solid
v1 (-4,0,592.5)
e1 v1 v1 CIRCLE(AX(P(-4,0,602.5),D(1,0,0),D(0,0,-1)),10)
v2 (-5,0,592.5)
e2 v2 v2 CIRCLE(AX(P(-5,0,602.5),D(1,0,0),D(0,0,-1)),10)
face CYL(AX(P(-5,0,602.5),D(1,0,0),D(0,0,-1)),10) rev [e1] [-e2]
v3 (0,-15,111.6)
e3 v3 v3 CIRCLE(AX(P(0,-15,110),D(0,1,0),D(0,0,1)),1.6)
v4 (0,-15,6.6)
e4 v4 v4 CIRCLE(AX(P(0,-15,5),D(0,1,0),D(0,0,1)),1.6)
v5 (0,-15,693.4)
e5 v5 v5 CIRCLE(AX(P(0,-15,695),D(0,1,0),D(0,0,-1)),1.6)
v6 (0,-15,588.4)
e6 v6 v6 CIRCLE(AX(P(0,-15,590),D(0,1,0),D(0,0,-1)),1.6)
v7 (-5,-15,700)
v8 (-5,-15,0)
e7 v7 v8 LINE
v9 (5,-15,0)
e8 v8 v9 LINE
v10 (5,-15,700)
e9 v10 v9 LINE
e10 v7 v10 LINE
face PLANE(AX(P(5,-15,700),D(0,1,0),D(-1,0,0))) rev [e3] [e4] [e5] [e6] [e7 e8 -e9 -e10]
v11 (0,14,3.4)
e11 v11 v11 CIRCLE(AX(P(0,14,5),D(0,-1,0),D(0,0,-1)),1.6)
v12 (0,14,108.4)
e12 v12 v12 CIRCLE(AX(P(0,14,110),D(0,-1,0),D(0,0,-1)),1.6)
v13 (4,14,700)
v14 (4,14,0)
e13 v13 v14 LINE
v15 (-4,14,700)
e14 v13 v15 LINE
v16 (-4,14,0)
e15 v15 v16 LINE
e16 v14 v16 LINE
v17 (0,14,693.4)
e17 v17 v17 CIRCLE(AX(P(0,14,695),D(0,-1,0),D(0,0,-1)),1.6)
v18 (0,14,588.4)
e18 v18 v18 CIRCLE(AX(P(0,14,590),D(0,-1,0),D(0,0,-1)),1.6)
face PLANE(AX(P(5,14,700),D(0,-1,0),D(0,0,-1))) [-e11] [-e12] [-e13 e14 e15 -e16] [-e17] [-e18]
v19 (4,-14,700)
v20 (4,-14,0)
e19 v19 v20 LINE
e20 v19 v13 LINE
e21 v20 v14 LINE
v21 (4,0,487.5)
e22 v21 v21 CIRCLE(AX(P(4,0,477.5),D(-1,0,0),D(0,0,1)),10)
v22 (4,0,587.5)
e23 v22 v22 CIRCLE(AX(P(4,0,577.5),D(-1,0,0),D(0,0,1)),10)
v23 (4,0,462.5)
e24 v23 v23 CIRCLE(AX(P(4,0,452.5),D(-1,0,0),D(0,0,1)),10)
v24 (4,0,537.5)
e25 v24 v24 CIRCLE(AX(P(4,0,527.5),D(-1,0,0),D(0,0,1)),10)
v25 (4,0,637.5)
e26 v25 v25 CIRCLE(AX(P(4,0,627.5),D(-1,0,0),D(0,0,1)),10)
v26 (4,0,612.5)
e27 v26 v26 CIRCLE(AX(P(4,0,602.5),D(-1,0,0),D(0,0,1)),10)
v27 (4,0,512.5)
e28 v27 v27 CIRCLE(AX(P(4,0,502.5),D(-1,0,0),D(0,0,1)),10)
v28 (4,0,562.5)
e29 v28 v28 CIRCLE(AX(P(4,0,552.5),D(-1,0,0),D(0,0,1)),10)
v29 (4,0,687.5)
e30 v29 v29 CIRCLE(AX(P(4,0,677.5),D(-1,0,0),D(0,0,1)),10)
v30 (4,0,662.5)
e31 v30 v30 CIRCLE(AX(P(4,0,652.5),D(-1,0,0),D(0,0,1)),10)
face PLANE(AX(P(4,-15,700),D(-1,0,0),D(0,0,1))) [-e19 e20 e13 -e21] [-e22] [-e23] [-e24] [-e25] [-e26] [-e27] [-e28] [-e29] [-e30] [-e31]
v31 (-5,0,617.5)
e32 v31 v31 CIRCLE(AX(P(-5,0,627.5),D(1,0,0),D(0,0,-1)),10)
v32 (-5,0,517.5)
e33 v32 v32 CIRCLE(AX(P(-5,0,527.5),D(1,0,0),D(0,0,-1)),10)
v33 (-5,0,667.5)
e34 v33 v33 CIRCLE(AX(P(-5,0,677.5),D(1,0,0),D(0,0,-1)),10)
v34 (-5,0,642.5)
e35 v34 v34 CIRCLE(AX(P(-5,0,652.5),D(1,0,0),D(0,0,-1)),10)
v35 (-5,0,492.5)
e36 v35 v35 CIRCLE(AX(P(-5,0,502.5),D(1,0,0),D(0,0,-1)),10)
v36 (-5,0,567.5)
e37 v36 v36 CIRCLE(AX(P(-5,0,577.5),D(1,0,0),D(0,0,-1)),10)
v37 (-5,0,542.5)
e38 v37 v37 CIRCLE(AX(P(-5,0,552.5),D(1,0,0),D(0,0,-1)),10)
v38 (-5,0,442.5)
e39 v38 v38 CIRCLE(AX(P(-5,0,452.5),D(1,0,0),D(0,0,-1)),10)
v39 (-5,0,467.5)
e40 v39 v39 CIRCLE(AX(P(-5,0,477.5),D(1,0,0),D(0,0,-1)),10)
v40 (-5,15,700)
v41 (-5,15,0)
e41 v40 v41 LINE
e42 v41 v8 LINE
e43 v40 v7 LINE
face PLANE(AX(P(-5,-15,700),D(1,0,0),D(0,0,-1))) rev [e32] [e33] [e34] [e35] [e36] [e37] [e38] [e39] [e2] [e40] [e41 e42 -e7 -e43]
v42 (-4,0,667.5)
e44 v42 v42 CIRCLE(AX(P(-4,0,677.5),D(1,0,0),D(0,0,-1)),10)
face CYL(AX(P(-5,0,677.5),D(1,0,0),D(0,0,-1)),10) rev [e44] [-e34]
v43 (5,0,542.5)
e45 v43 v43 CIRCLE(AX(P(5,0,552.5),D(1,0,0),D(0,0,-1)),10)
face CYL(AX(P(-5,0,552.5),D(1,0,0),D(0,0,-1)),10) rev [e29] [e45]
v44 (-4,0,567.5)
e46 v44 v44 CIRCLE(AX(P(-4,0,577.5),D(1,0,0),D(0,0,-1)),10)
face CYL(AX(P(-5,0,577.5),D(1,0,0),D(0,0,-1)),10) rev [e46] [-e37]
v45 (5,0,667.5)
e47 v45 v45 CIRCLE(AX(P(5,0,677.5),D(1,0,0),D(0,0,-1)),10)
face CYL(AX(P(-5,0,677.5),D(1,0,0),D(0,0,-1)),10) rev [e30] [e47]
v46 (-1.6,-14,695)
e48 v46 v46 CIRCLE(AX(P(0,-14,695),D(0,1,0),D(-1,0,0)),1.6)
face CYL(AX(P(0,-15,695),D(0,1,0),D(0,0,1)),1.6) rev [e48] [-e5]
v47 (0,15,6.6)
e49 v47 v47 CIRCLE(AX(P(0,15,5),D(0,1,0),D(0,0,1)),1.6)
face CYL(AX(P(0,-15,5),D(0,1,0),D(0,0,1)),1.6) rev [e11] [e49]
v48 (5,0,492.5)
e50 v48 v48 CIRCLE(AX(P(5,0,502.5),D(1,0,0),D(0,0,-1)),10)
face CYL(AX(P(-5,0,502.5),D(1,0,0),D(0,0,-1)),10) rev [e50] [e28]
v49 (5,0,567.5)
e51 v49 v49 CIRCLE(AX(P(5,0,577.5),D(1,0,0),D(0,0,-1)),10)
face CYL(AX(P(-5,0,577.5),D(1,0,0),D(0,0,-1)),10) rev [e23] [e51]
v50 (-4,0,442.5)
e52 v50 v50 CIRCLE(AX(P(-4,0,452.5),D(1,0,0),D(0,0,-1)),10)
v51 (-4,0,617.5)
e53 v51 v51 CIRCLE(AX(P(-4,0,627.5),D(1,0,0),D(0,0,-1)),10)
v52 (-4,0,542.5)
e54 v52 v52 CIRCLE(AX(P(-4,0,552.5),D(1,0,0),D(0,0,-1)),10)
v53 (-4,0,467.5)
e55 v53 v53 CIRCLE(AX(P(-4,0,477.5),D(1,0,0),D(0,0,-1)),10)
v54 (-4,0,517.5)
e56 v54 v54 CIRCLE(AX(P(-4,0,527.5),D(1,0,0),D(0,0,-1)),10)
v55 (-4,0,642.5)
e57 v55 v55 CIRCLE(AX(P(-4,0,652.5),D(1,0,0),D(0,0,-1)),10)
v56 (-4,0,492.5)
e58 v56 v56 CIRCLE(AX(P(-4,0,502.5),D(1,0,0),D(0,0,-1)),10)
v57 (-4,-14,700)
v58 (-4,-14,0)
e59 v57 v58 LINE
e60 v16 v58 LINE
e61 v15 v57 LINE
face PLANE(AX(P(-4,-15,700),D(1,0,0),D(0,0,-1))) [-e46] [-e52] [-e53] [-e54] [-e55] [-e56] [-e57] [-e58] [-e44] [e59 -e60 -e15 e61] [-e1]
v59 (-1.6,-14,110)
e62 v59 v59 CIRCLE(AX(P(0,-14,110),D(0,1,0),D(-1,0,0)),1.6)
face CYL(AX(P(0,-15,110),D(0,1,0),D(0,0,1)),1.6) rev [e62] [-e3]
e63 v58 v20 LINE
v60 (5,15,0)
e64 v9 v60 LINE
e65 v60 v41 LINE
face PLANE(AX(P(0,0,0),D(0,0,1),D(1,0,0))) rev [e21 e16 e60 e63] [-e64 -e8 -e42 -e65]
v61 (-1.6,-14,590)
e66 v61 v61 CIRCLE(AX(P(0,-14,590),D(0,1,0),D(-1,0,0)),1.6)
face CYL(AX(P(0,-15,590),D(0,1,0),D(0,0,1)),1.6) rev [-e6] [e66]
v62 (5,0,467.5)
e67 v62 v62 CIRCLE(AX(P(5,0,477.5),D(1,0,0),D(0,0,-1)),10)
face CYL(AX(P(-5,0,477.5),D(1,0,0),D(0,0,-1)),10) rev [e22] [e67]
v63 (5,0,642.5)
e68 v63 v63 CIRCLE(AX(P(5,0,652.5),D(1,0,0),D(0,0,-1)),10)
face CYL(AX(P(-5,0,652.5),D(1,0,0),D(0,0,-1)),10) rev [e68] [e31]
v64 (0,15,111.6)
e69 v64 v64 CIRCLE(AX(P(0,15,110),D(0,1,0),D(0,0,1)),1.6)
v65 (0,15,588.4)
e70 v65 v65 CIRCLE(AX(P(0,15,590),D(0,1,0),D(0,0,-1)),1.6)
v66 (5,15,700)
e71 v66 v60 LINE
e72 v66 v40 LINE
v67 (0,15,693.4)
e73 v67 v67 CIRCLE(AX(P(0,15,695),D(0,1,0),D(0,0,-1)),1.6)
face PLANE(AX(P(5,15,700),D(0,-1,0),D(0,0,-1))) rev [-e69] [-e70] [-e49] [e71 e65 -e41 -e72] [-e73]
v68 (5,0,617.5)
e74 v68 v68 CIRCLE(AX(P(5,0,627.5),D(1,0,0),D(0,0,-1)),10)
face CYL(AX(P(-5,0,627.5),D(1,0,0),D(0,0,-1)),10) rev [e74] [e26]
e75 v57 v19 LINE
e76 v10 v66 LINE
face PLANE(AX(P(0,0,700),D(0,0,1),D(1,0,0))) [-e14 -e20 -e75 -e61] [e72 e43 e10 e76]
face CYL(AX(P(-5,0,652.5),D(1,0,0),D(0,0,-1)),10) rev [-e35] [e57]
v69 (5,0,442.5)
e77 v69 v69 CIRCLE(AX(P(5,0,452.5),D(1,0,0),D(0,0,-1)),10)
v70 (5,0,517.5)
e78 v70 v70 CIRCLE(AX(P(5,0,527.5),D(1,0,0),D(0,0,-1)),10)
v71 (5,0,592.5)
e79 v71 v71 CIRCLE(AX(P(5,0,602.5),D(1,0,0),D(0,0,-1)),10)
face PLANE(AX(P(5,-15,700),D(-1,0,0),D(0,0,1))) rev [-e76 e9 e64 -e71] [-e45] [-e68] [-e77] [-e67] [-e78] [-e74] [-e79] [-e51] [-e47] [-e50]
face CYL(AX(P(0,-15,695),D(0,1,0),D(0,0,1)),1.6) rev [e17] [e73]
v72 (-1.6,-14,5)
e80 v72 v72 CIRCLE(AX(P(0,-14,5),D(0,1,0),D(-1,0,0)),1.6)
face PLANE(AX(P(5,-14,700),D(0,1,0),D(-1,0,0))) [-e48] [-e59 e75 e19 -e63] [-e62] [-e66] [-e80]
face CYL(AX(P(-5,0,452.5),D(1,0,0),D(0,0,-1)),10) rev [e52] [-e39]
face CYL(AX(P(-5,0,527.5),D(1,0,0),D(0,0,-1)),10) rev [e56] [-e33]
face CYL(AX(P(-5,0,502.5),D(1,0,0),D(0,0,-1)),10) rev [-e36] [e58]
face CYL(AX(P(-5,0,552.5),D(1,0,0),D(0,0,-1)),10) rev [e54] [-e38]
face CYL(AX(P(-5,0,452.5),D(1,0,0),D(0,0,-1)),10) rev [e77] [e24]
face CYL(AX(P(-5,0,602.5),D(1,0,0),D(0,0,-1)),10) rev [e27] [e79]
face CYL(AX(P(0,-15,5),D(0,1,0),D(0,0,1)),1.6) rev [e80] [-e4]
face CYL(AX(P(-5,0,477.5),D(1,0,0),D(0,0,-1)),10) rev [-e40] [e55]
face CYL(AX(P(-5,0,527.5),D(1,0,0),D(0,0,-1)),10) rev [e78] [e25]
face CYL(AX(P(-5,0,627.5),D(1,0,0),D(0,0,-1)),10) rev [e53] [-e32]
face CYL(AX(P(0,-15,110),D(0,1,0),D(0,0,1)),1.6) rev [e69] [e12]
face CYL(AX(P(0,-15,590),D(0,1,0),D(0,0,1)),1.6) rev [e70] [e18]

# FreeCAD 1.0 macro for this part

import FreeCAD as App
import Part
import Sketcher

V = App.Vector
Q = App.Units.Quantity

doc = App.newDocument("Part")
params = doc.addObject("Spreadsheet::Sheet", "Params")
for row, (alias, value) in enumerate([
    ("sketch1_width", "10 mm"),
    ("sketch1_width2", "8 mm"),
    ("sketch1_height", "30 mm"),
    ("sketch1_height2", "28 mm"),
    ("pad1_length", "700 mm"),
    ("sketch2_diameter", "3.2 mm"),
    ("sketch3_diameter", "20 mm"),
], start=1):
    params.set(f"A{row}", alias)
    params.set(f"B{row}", "=" + value)
    params.setAlias(f"B{row}", alias)

body = doc.addObject("PartDesign::Body", "Body")

# Sketch on XY plane
sketch1 = body.newObject("Sketcher::SketchObject", "Sketch")
sketch1.AttachmentSupport = (doc.getObject("XY_Plane"), [""])
sketch1.MapMode = "FlatFace"
sketch1.addGeometry(Part.LineSegment(V(-5, 15, 0), V(-5, -15, 0)), False)
sketch1.addGeometry(Part.LineSegment(V(-5, -15, 0), V(5, -15, 0)), False)
sketch1.addGeometry(Part.LineSegment(V(5, -15, 0), V(5, 15, 0)), False)
sketch1.addGeometry(Part.LineSegment(V(5, 15, 0), V(-5, 15, 0)), False)
sketch1.addGeometry(Part.LineSegment(V(4, -14, 0), V(-4, -14, 0)), False)
sketch1.addGeometry(Part.LineSegment(V(-4, -14, 0), V(-4, 14, 0)), False)
sketch1.addGeometry(Part.LineSegment(V(-4, 14, 0), V(4, 14, 0)), False)
sketch1.addGeometry(Part.LineSegment(V(4, 14, 0), V(4, -14, 0)), False)
sketch1.addConstraint(Sketcher.Constraint("Coincident", 0, 2, 1, 1))
sketch1.addConstraint(Sketcher.Constraint("Coincident", 1, 2, 2, 1))
sketch1.addConstraint(Sketcher.Constraint("Coincident", 2, 2, 3, 1))
sketch1.addConstraint(Sketcher.Constraint("Coincident", 3, 2, 0, 1))
sketch1.addConstraint(Sketcher.Constraint("Coincident", 4, 2, 5, 1))
sketch1.addConstraint(Sketcher.Constraint("Coincident", 5, 2, 6, 1))
sketch1.addConstraint(Sketcher.Constraint("Coincident", 6, 2, 7, 1))
sketch1.addConstraint(Sketcher.Constraint("Coincident", 7, 2, 4, 1))
sketch1.addConstraint(Sketcher.Constraint("Vertical", 0))
sketch1.addConstraint(Sketcher.Constraint("Horizontal", 1))
sketch1.addConstraint(Sketcher.Constraint("Vertical", 2))
sketch1.addConstraint(Sketcher.Constraint("Horizontal", 3))
sketch1.addConstraint(Sketcher.Constraint("Horizontal", 4))
sketch1.addConstraint(Sketcher.Constraint("Vertical", 5))
sketch1.addConstraint(Sketcher.Constraint("Horizontal", 6))
sketch1.addConstraint(Sketcher.Constraint("Vertical", 7))
sketch1.addConstraint(Sketcher.Constraint("Symmetric", 0, 2, 2, 2, -1, 1))
sketch1.addConstraint(Sketcher.Constraint("Symmetric", 4, 2, 6, 2, -1, 1))
sketch1.addConstraint(Sketcher.Constraint("DistanceX", 1, 1, 1, 2, Q("10 mm")))
sketch1.addConstraint(Sketcher.Constraint("DistanceX", 4, 2, 4, 1, Q("8 mm")))
sketch1.addConstraint(Sketcher.Constraint("DistanceY", 0, 2, 0, 1, Q("30 mm")))
sketch1.addConstraint(Sketcher.Constraint("DistanceY", 5, 1, 5, 2, Q("28 mm")))
sketch1.setExpression("Constraints[18]", "Params.sketch1_width")
sketch1.setExpression("Constraints[19]", "Params.sketch1_width2")
sketch1.setExpression("Constraints[20]", "Params.sketch1_height")
sketch1.setExpression("Constraints[21]", "Params.sketch1_height2")
pad1 = body.newObject("PartDesign::Pad", "Pad")
pad1.Profile = sketch1
pad1.setExpression("Length", "Params.pad1_length")

# Sketch on XZ plane
sketch2 = body.newObject("Sketcher::SketchObject", "Sketch001")
sketch2.AttachmentSupport = (doc.getObject("XZ_Plane"), [""])
sketch2.MapMode = "FlatFace"
sketch2.AttachmentOffset = App.Placement(V(0, 0, -15), App.Rotation())
sketch2.addGeometry(Part.Circle(V(0, 5, 0), V(0, 0, 1), 1.6), False)
sketch2.addGeometry(Part.Circle(V(0, 110, 0), V(0, 0, 1), 1.6), False)
sketch2.addGeometry(Part.Circle(V(0, 695, 0), V(0, 0, 1), 1.6), False)
sketch2.addGeometry(Part.Circle(V(0, 590, 0), V(0, 0, 1), 1.6), False)
sketch2.addConstraint(Sketcher.Constraint("Equal", 0, 1))
sketch2.addConstraint(Sketcher.Constraint("Equal", 1, 2))
sketch2.addConstraint(Sketcher.Constraint("Equal", 2, 3))
sketch2.addConstraint(Sketcher.Constraint("PointOnObject", 0, 3, -2))
sketch2.addConstraint(Sketcher.Constraint("PointOnObject", 1, 3, -2))
sketch2.addConstraint(Sketcher.Constraint("PointOnObject", 2, 3, -2))
sketch2.addConstraint(Sketcher.Constraint("PointOnObject", 3, 3, -2))
sketch2.addConstraint(Sketcher.Constraint("Diameter", 0, Q("3.2 mm")))
sketch2.addConstraint(Sketcher.Constraint("DistanceY", -1, 1, 0, 3, Q("5 mm")))
sketch2.addConstraint(Sketcher.Constraint("DistanceY", -1, 1, 1, 3, Q("110 mm")))
sketch2.addConstraint(Sketcher.Constraint("DistanceY", -1, 1, 2, 3, Q("695 mm")))
sketch2.addConstraint(Sketcher.Constraint("DistanceY", -1, 1, 3, 3, Q("590 mm")))
sketch2.setExpression("Constraints[7]", "Params.sketch2_diameter")
pocket1 = body.newObject("PartDesign::Pocket", "Pocket")
pocket1.Profile = sketch2
pocket1.Type = "ThroughAll"
pocket1.Reversed = True

# Sketch on YZ plane
sketch3 = body.newObject("Sketcher::SketchObject", "Sketch002")
sketch3.AttachmentSupport = (doc.getObject("YZ_Plane"), [""])
sketch3.MapMode = "FlatFace"
sketch3.AttachmentOffset = App.Placement(V(0, 0, 5), App.Rotation())
sketch3.addGeometry(Part.Circle(V(0, 678, 0), V(0, 0, 1), 10), False)
sketch3.addGeometry(Part.Circle(V(0, 652, 0), V(0, 0, 1), 10), False)
sketch3.addGeometry(Part.Circle(V(0, 628, 0), V(0, 0, 1), 10), False)
sketch3.addGeometry(Part.Circle(V(0, 602, 0), V(0, 0, 1), 10), False)
sketch3.addGeometry(Part.Circle(V(0, 578, 0), V(0, 0, 1), 10), False)
sketch3.addGeometry(Part.Circle(V(0, 552, 0), V(0, 0, 1), 10), False)
sketch3.addGeometry(Part.Circle(V(0, 528, 0), V(0, 0, 1), 10), False)
sketch3.addGeometry(Part.Circle(V(0, 502, 0), V(0, 0, 1), 10), False)
sketch3.addGeometry(Part.Circle(V(0, 478, 0), V(0, 0, 1), 10), False)
sketch3.addGeometry(Part.Circle(V(0, 452, 0), V(0, 0, 1), 10), False)
sketch3.addConstraint(Sketcher.Constraint("Equal", 0, 1))
sketch3.addConstraint(Sketcher.Constraint("Equal", 1, 2))
sketch3.addConstraint(Sketcher.Constraint("Equal", 2, 3))
sketch3.addConstraint(Sketcher.Constraint("Equal", 3, 4))
sketch3.addConstraint(Sketcher.Constraint("Equal", 4, 5))
sketch3.addConstraint(Sketcher.Constraint("Equal", 5, 6))
sketch3.addConstraint(Sketcher.Constraint("Equal", 6, 7))
sketch3.addConstraint(Sketcher.Constraint("Equal", 7, 8))
sketch3.addConstraint(Sketcher.Constraint("Equal", 8, 9))
sketch3.addConstraint(Sketcher.Constraint("PointOnObject", 0, 3, -2))
sketch3.addConstraint(Sketcher.Constraint("PointOnObject", 1, 3, -2))
sketch3.addConstraint(Sketcher.Constraint("PointOnObject", 2, 3, -2))
sketch3.addConstraint(Sketcher.Constraint("PointOnObject", 3, 3, -2))
sketch3.addConstraint(Sketcher.Constraint("PointOnObject", 4, 3, -2))
sketch3.addConstraint(Sketcher.Constraint("PointOnObject", 5, 3, -2))
sketch3.addConstraint(Sketcher.Constraint("PointOnObject", 6, 3, -2))
sketch3.addConstraint(Sketcher.Constraint("PointOnObject", 7, 3, -2))
sketch3.addConstraint(Sketcher.Constraint("PointOnObject", 8, 3, -2))
sketch3.addConstraint(Sketcher.Constraint("PointOnObject", 9, 3, -2))
sketch3.addConstraint(Sketcher.Constraint("Diameter", 0, Q("20 mm")))
sketch3.addConstraint(Sketcher.Constraint("DistanceY", 1, 3, 0, 3, Q("25 mm")))
sketch3.addConstraint(Sketcher.Constraint("DistanceY", 2, 3, 1, 3, Q("25 mm")))
sketch3.addConstraint(Sketcher.Constraint("DistanceY", 3, 3, 2, 3, Q("25 mm")))
sketch3.addConstraint(Sketcher.Constraint("DistanceY", 4, 3, 3, 3, Q("25 mm")))
sketch3.addConstraint(Sketcher.Constraint("DistanceY", 5, 3, 4, 3, Q("25 mm")))
sketch3.addConstraint(Sketcher.Constraint("DistanceY", 6, 3, 5, 3, Q("25 mm")))
sketch3.addConstraint(Sketcher.Constraint("DistanceY", 7, 3, 6, 3, Q("25 mm")))
sketch3.addConstraint(Sketcher.Constraint("DistanceY", 8, 3, 7, 3, Q("25 mm")))
sketch3.addConstraint(Sketcher.Constraint("DistanceY", 9, 3, 8, 3, Q("25 mm")))
sketch3.addConstraint(Sketcher.Constraint("DistanceY", -1, 1, 0, 3, Q("677.5 mm")))
sketch3.setExpression("Constraints[19]", "Params.sketch3_diameter")
pocket2 = body.newObject("PartDesign::Pocket", "Pocket001")
pocket2.Profile = sketch3
pocket2.Type = "ThroughAll"

doc.recompute()
